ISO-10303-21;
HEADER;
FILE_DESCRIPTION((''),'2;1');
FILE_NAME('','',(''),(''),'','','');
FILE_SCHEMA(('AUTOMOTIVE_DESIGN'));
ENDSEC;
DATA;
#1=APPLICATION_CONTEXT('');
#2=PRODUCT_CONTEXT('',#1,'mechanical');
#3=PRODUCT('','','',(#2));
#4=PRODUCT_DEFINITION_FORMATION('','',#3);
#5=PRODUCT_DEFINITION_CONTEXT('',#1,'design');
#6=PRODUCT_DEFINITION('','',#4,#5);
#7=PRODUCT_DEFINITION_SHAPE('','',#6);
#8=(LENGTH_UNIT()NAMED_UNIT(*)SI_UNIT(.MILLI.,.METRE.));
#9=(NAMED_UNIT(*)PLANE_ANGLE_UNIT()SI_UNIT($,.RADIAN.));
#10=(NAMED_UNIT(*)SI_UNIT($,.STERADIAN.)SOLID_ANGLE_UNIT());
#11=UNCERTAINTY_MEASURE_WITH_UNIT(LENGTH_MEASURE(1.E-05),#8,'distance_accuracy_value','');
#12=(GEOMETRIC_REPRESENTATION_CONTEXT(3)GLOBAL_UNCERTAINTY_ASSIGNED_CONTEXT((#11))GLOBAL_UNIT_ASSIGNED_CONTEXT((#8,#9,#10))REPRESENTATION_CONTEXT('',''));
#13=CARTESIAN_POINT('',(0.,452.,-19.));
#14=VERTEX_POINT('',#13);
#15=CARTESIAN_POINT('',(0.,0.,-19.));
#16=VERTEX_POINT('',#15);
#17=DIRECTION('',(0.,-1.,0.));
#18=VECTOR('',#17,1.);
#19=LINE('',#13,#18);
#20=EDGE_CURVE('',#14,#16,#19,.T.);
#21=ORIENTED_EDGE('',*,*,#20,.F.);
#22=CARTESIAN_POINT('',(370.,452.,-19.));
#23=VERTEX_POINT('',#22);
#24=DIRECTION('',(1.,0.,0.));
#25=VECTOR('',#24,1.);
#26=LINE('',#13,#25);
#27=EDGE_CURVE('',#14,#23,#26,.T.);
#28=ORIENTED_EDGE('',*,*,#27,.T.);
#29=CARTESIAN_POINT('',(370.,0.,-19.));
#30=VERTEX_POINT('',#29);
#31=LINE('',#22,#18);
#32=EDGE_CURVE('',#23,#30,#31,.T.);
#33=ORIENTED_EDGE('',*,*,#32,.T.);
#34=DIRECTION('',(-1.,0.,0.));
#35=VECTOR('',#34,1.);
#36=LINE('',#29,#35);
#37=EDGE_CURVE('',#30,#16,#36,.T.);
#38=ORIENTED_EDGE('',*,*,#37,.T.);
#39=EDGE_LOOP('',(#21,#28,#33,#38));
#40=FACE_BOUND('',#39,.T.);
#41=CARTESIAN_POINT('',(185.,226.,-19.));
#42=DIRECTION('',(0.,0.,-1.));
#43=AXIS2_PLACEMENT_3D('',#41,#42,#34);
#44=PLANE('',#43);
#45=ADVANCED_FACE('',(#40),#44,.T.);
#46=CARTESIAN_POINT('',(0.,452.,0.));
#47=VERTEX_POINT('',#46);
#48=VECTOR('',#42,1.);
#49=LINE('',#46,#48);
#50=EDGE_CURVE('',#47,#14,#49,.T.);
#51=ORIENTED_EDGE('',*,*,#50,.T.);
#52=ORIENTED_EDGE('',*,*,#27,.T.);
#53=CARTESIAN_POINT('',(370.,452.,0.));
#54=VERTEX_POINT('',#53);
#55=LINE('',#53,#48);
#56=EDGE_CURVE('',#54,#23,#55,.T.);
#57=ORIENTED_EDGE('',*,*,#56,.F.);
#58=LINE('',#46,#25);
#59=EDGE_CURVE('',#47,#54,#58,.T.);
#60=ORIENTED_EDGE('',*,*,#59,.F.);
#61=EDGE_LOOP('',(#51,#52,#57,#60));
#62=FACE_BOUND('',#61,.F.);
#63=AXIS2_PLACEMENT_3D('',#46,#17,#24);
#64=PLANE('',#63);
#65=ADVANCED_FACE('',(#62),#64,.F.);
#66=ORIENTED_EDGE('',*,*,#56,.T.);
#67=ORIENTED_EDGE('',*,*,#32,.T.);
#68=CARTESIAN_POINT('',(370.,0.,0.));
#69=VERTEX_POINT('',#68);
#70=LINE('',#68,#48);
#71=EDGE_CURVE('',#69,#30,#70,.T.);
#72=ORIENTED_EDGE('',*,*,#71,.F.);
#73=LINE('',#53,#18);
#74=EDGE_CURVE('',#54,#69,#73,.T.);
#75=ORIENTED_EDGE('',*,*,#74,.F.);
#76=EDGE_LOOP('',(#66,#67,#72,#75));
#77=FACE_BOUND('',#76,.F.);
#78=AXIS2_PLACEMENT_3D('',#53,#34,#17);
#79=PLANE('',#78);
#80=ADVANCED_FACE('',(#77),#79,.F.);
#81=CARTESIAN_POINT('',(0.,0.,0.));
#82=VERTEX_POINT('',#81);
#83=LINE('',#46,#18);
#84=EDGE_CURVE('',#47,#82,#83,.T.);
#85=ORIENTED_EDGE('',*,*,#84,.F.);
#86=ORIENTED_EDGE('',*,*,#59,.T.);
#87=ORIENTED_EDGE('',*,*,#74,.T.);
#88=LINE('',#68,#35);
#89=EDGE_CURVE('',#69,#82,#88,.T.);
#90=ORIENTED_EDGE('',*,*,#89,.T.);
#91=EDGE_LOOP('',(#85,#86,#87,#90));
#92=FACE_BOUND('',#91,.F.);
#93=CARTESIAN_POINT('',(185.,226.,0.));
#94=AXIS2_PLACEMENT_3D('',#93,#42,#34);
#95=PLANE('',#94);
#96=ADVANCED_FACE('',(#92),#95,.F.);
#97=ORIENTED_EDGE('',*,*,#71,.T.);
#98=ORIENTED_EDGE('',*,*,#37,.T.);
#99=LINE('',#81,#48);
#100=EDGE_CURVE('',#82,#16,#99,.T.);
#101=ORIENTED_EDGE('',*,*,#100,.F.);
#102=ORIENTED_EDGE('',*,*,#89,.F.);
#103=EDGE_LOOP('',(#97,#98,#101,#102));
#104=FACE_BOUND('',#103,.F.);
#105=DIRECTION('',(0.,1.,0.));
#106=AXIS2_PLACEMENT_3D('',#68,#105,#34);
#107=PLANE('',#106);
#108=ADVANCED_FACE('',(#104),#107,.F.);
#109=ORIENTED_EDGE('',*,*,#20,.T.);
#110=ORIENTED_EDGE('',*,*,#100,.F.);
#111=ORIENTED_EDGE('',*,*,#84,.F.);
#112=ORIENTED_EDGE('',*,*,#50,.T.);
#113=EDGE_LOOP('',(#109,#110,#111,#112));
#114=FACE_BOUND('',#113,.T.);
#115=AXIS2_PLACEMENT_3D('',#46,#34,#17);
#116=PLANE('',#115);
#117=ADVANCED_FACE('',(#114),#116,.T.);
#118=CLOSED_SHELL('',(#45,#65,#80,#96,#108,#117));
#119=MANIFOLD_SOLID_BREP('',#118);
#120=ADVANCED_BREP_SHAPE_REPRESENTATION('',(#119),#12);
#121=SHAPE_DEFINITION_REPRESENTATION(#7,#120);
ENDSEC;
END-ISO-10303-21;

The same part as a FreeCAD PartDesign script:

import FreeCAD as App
import Part
import Sketcher
from FreeCAD import Vector
Q = App.Units.Quantity

doc = App.newDocument("Part")
params = doc.addObject("Spreadsheet::Sheet", "Params")
for row, (alias, value) in enumerate([
    ("sketch1_width", "370 mm"),
    ("sketch1_height", "452 mm"),
    ("pad1_length", "19 mm"),
], start=1):
    params.set(f"A{row}", alias)
    params.set(f"B{row}", "=" + value)
    params.setAlias(f"B{row}", alias)

body = doc.addObject("PartDesign::Body", "Body")

# Sketch on XY plane
sketch1 = doc.addObject("Sketcher::SketchObject", "Sketch")
body.addObject(sketch1)
sketch1.AttachmentSupport = (doc.XY_Plane, [""])
sketch1.MapMode = "FlatFace"
sketch1.addGeometry([
    Part.LineSegment(Vector(0, 452, 0), Vector(0, 0, 0)),
    Part.LineSegment(Vector(0, 0, 0), Vector(370, 0, 0)),
    Part.LineSegment(Vector(370, 0, 0), Vector(370, 452, 0)),
    Part.LineSegment(Vector(370, 452, 0), Vector(0, 452, 0)),
], False)
sketch1.addConstraint([
    Sketcher.Constraint("Coincident", 0, 2, 1, 1),
    Sketcher.Constraint("Coincident", 1, 2, 2, 1),
    Sketcher.Constraint("Coincident", 2, 2, 3, 1),
    Sketcher.Constraint("Coincident", 3, 2, 0, 1),
    Sketcher.Constraint("Vertical", 0),
    Sketcher.Constraint("Horizontal", 1),
    Sketcher.Constraint("Vertical", 2),
    Sketcher.Constraint("Horizontal", 3),
    Sketcher.Constraint("Coincident", 0, 2, -1, 1),
    Sketcher.Constraint("DistanceX", 1, 1, 1, 2, Q("370 mm")),
    Sketcher.Constraint("DistanceY", 0, 2, 0, 1, Q("452 mm")),
])
sketch1.setExpression("Constraints[9]", "Params.sketch1_width")
sketch1.setExpression("Constraints[10]", "Params.sketch1_height")
pad1 = doc.addObject("PartDesign::Pad", "Pad")
body.addObject(pad1)
pad1.Profile = sketch1
pad1.setExpression("Length", "Params.pad1_length")
pad1.Reversed = True

doc.recompute()
